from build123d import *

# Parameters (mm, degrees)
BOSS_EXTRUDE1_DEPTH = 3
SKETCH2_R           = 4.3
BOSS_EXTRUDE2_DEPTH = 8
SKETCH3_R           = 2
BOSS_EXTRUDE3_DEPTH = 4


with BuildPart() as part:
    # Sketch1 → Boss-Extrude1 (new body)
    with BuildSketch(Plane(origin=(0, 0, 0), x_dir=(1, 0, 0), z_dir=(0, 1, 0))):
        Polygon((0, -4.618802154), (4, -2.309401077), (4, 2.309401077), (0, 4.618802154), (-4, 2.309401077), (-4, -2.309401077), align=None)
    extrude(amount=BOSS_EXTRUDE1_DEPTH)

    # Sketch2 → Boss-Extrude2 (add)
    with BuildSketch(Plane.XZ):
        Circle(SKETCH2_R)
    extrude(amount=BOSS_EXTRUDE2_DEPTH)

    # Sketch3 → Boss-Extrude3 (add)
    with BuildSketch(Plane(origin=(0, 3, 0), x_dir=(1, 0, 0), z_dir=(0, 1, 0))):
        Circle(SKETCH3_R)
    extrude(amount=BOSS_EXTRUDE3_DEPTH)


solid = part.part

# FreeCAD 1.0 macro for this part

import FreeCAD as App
import Part
import Sketcher
Q = App.Units.Quantity


def add_polygon(sketch, points):
    """Adds a closed chain of lines whose ends are joined by coincident constraints."""
    first, n = sketch.GeometryCount, len(points)
    for a, b in zip(points, points[1:] + points[:1]):
        sketch.addGeometry(Part.LineSegment(App.Vector(*a, 0), App.Vector(*b, 0)), False)
    for i in range(n):
        sketch.addConstraint(Sketcher.Constraint("Coincident", first + i, 2, first + (i + 1) % n, 1))

doc = App.newDocument("Part")
body = doc.addObject("PartDesign::Body", "Body")

# Sketch on XZ plane
sketch1 = body.newObject("Sketcher::SketchObject", "Sketch")
sketch1.AttachmentSupport = (doc.getObject("XZ_Plane"), [""])
sketch1.MapMode = "FlatFace"
add_polygon(sketch1, [(0, 4.618802), (4, 2.309401), (4, -2.309401), (0, -4.618802), (-4, -2.309401), (-4, 2.309401)])  # lines 0-5
sketch1.addConstraint(Sketcher.Constraint("Vertical", 1))
sketch1.addConstraint(Sketcher.Constraint("Vertical", 4))
sketch1.addConstraint(Sketcher.Constraint("Symmetric", 0, 2, 3, 2, -1, 1))
sketch1.addConstraint(Sketcher.Constraint("Symmetric", 2, 2, 5, 2, -1, 1))
sketch1.addConstraint(Sketcher.Constraint("PointOnObject", 2, 2, -2))
sketch1.addConstraint(Sketcher.Constraint("Parallel", 2, 5))
sketch1.addConstraint(Sketcher.Constraint("Horizontal", 1, 2, 3, 2))
sketch1.addConstraint(Sketcher.Constraint("Angle", 0, Q("-30 deg")))
sketch1.addConstraint(Sketcher.Constraint("DistanceX", -1, 1, 0, 2, Q("4 mm")))
sketch1.addConstraint(Sketcher.Constraint("DistanceY", -1, 1, 0, 2, Q("2.309401 mm")))
pad1 = body.newObject("PartDesign::Pad", "Pad")
pad1.Profile = sketch1
pad1.Length = 3
pad1.Reversed = True

# Sketch on XZ plane
sketch2 = body.newObject("Sketcher::SketchObject", "Sketch001")
sketch2.AttachmentSupport = (doc.getObject("XZ_Plane"), [""])
sketch2.MapMode = "FlatFace"
sketch2.addGeometry(Part.Circle(App.Vector(0, 0, 0), App.Vector(0, 0, 1), 4.3), False)
sketch2.addConstraint(Sketcher.Constraint("Coincident", 0, 3, -1, 1))
sketch2.addConstraint(Sketcher.Constraint("Diameter", 0, Q("8.6 mm")))
pad2 = body.newObject("PartDesign::Pad", "Pad001")
pad2.Profile = sketch2
pad2.Length = 8

# Sketch on XZ plane
sketch3 = body.newObject("Sketcher::SketchObject", "Sketch002")
sketch3.AttachmentSupport = (doc.getObject("XZ_Plane"), [""])
sketch3.MapMode = "FlatFace"
sketch3.AttachmentOffset = App.Placement(App.Vector(0, 0, -3), App.Rotation())
sketch3.addGeometry(Part.Circle(App.Vector(0, 0, 0), App.Vector(0, 0, 1), 2), False)
sketch3.addConstraint(Sketcher.Constraint("Coincident", 0, 3, -1, 1))
sketch3.addConstraint(Sketcher.Constraint("Diameter", 0, Q("4 mm")))
pad3 = body.newObject("PartDesign::Pad", "Pad002")
pad3.Profile = sketch3
pad3.Length = 4
pad3.Reversed = True

doc.recompute()
